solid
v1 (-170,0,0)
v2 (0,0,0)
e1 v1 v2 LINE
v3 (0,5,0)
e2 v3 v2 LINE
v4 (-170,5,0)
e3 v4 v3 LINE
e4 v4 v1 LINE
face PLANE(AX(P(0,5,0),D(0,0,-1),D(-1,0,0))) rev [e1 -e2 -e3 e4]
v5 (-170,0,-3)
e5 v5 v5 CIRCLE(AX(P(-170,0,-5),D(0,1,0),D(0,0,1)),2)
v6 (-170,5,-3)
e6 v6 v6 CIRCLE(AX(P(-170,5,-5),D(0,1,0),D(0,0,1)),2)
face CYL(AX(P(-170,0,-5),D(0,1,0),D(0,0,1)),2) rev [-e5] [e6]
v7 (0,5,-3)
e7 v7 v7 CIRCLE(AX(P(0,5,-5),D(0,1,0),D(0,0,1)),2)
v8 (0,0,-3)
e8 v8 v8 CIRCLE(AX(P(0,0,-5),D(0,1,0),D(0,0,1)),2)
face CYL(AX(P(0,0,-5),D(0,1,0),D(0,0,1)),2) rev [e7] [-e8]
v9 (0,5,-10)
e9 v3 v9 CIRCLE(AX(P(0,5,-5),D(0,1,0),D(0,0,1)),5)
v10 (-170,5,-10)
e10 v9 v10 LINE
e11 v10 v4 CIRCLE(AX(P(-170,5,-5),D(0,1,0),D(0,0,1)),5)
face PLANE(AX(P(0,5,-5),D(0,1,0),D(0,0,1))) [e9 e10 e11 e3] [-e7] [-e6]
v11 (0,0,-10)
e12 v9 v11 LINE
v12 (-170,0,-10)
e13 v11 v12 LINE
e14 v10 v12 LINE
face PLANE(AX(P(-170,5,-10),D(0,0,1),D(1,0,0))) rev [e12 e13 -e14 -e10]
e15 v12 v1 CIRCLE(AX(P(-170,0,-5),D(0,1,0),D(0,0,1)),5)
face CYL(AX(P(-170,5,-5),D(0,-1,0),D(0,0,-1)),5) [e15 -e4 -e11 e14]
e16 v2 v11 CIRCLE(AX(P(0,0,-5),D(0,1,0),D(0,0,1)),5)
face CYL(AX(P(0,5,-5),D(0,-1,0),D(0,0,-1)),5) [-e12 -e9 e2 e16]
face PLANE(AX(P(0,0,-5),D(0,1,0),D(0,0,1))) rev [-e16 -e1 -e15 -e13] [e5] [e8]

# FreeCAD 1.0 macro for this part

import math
import FreeCAD as App
import Part
import Sketcher
from FreeCAD import Vector
Q = App.Units.Quantity

doc = App.newDocument("Part")
body = doc.addObject("PartDesign::Body", "Body")

# Sketch on XZ plane
sketch1 = doc.addObject("Sketcher::SketchObject", "Sketch")
body.addObject(sketch1)
sketch1.AttachmentSupport = (doc.XZ_Plane, [""])
sketch1.MapMode = "FlatFace"
sketch1.addGeometry([
    Part.LineSegment(Vector(-170, 0, 0), Vector(0, 0, 0)),
    Part.ArcOfCircle(Part.Circle(Vector(0, -5, 0), Vector(0, 0, 1), 5), math.radians(-90), math.radians(90)),
    Part.LineSegment(Vector(0, -10, 0), Vector(-170, -10, 0)),
    Part.ArcOfCircle(Part.Circle(Vector(-170, -5, 0), Vector(0, 0, 1), 5), math.radians(90), math.radians(270)),
], False)
sketch1.addConstraint([
    Sketcher.Constraint("Tangent", 0, 2, 1, 2),
    Sketcher.Constraint("Tangent", 1, 1, 2, 1),
    Sketcher.Constraint("Tangent", 2, 2, 3, 2),
    Sketcher.Constraint("Tangent", 3, 1, 0, 1),
    Sketcher.Constraint("Horizontal", 0),
    Sketcher.Constraint("Horizontal", 2),
    Sketcher.Constraint("Coincident", 0, 2, -1, 1),
    Sketcher.Constraint("Radius", 1, Q("5 mm")),
    Sketcher.Constraint("DistanceX", 0, 1, 0, 2, Q("170 mm")),
])
pad1 = doc.addObject("PartDesign::Pad", "Pad")
body.addObject(pad1)
pad1.Profile = sketch1
pad1.Length = 5
pad1.Reversed = True

# Sketch on XZ plane
sketch2 = doc.addObject("Sketcher::SketchObject", "Sketch001")
body.addObject(sketch2)
sketch2.AttachmentSupport = (doc.XZ_Plane, [""])
sketch2.MapMode = "FlatFace"
sketch2.AttachmentOffset = App.Placement(Vector(0, 0, -5), App.Rotation())
sketch2.addGeometry([
    Part.Circle(Vector(-170, -5, 0), Vector(0, 0, 1), 2),
    Part.Circle(Vector(0, -5, 0), Vector(0, 0, 1), 2),
], False)
sketch2.addConstraint([
    Sketcher.Constraint("Equal", 0, 1),
    Sketcher.Constraint("PointOnObject", 1, 3, -2),
    Sketcher.Constraint("Horizontal", 0, 3, 1, 3),
    Sketcher.Constraint("Diameter", 0, Q("4 mm")),
    Sketcher.Constraint("DistanceX", 0, 3, -1, 1, Q("170 mm")),
    Sketcher.Constraint("DistanceY", 0, 3, -1, 1, Q("5 mm")),
])
pocket1 = doc.addObject("PartDesign::Pocket", "Pocket")
body.addObject(pocket1)
pocket1.Profile = sketch2
pocket1.Length = 5
pocket1.Reversed = True

doc.recompute()
